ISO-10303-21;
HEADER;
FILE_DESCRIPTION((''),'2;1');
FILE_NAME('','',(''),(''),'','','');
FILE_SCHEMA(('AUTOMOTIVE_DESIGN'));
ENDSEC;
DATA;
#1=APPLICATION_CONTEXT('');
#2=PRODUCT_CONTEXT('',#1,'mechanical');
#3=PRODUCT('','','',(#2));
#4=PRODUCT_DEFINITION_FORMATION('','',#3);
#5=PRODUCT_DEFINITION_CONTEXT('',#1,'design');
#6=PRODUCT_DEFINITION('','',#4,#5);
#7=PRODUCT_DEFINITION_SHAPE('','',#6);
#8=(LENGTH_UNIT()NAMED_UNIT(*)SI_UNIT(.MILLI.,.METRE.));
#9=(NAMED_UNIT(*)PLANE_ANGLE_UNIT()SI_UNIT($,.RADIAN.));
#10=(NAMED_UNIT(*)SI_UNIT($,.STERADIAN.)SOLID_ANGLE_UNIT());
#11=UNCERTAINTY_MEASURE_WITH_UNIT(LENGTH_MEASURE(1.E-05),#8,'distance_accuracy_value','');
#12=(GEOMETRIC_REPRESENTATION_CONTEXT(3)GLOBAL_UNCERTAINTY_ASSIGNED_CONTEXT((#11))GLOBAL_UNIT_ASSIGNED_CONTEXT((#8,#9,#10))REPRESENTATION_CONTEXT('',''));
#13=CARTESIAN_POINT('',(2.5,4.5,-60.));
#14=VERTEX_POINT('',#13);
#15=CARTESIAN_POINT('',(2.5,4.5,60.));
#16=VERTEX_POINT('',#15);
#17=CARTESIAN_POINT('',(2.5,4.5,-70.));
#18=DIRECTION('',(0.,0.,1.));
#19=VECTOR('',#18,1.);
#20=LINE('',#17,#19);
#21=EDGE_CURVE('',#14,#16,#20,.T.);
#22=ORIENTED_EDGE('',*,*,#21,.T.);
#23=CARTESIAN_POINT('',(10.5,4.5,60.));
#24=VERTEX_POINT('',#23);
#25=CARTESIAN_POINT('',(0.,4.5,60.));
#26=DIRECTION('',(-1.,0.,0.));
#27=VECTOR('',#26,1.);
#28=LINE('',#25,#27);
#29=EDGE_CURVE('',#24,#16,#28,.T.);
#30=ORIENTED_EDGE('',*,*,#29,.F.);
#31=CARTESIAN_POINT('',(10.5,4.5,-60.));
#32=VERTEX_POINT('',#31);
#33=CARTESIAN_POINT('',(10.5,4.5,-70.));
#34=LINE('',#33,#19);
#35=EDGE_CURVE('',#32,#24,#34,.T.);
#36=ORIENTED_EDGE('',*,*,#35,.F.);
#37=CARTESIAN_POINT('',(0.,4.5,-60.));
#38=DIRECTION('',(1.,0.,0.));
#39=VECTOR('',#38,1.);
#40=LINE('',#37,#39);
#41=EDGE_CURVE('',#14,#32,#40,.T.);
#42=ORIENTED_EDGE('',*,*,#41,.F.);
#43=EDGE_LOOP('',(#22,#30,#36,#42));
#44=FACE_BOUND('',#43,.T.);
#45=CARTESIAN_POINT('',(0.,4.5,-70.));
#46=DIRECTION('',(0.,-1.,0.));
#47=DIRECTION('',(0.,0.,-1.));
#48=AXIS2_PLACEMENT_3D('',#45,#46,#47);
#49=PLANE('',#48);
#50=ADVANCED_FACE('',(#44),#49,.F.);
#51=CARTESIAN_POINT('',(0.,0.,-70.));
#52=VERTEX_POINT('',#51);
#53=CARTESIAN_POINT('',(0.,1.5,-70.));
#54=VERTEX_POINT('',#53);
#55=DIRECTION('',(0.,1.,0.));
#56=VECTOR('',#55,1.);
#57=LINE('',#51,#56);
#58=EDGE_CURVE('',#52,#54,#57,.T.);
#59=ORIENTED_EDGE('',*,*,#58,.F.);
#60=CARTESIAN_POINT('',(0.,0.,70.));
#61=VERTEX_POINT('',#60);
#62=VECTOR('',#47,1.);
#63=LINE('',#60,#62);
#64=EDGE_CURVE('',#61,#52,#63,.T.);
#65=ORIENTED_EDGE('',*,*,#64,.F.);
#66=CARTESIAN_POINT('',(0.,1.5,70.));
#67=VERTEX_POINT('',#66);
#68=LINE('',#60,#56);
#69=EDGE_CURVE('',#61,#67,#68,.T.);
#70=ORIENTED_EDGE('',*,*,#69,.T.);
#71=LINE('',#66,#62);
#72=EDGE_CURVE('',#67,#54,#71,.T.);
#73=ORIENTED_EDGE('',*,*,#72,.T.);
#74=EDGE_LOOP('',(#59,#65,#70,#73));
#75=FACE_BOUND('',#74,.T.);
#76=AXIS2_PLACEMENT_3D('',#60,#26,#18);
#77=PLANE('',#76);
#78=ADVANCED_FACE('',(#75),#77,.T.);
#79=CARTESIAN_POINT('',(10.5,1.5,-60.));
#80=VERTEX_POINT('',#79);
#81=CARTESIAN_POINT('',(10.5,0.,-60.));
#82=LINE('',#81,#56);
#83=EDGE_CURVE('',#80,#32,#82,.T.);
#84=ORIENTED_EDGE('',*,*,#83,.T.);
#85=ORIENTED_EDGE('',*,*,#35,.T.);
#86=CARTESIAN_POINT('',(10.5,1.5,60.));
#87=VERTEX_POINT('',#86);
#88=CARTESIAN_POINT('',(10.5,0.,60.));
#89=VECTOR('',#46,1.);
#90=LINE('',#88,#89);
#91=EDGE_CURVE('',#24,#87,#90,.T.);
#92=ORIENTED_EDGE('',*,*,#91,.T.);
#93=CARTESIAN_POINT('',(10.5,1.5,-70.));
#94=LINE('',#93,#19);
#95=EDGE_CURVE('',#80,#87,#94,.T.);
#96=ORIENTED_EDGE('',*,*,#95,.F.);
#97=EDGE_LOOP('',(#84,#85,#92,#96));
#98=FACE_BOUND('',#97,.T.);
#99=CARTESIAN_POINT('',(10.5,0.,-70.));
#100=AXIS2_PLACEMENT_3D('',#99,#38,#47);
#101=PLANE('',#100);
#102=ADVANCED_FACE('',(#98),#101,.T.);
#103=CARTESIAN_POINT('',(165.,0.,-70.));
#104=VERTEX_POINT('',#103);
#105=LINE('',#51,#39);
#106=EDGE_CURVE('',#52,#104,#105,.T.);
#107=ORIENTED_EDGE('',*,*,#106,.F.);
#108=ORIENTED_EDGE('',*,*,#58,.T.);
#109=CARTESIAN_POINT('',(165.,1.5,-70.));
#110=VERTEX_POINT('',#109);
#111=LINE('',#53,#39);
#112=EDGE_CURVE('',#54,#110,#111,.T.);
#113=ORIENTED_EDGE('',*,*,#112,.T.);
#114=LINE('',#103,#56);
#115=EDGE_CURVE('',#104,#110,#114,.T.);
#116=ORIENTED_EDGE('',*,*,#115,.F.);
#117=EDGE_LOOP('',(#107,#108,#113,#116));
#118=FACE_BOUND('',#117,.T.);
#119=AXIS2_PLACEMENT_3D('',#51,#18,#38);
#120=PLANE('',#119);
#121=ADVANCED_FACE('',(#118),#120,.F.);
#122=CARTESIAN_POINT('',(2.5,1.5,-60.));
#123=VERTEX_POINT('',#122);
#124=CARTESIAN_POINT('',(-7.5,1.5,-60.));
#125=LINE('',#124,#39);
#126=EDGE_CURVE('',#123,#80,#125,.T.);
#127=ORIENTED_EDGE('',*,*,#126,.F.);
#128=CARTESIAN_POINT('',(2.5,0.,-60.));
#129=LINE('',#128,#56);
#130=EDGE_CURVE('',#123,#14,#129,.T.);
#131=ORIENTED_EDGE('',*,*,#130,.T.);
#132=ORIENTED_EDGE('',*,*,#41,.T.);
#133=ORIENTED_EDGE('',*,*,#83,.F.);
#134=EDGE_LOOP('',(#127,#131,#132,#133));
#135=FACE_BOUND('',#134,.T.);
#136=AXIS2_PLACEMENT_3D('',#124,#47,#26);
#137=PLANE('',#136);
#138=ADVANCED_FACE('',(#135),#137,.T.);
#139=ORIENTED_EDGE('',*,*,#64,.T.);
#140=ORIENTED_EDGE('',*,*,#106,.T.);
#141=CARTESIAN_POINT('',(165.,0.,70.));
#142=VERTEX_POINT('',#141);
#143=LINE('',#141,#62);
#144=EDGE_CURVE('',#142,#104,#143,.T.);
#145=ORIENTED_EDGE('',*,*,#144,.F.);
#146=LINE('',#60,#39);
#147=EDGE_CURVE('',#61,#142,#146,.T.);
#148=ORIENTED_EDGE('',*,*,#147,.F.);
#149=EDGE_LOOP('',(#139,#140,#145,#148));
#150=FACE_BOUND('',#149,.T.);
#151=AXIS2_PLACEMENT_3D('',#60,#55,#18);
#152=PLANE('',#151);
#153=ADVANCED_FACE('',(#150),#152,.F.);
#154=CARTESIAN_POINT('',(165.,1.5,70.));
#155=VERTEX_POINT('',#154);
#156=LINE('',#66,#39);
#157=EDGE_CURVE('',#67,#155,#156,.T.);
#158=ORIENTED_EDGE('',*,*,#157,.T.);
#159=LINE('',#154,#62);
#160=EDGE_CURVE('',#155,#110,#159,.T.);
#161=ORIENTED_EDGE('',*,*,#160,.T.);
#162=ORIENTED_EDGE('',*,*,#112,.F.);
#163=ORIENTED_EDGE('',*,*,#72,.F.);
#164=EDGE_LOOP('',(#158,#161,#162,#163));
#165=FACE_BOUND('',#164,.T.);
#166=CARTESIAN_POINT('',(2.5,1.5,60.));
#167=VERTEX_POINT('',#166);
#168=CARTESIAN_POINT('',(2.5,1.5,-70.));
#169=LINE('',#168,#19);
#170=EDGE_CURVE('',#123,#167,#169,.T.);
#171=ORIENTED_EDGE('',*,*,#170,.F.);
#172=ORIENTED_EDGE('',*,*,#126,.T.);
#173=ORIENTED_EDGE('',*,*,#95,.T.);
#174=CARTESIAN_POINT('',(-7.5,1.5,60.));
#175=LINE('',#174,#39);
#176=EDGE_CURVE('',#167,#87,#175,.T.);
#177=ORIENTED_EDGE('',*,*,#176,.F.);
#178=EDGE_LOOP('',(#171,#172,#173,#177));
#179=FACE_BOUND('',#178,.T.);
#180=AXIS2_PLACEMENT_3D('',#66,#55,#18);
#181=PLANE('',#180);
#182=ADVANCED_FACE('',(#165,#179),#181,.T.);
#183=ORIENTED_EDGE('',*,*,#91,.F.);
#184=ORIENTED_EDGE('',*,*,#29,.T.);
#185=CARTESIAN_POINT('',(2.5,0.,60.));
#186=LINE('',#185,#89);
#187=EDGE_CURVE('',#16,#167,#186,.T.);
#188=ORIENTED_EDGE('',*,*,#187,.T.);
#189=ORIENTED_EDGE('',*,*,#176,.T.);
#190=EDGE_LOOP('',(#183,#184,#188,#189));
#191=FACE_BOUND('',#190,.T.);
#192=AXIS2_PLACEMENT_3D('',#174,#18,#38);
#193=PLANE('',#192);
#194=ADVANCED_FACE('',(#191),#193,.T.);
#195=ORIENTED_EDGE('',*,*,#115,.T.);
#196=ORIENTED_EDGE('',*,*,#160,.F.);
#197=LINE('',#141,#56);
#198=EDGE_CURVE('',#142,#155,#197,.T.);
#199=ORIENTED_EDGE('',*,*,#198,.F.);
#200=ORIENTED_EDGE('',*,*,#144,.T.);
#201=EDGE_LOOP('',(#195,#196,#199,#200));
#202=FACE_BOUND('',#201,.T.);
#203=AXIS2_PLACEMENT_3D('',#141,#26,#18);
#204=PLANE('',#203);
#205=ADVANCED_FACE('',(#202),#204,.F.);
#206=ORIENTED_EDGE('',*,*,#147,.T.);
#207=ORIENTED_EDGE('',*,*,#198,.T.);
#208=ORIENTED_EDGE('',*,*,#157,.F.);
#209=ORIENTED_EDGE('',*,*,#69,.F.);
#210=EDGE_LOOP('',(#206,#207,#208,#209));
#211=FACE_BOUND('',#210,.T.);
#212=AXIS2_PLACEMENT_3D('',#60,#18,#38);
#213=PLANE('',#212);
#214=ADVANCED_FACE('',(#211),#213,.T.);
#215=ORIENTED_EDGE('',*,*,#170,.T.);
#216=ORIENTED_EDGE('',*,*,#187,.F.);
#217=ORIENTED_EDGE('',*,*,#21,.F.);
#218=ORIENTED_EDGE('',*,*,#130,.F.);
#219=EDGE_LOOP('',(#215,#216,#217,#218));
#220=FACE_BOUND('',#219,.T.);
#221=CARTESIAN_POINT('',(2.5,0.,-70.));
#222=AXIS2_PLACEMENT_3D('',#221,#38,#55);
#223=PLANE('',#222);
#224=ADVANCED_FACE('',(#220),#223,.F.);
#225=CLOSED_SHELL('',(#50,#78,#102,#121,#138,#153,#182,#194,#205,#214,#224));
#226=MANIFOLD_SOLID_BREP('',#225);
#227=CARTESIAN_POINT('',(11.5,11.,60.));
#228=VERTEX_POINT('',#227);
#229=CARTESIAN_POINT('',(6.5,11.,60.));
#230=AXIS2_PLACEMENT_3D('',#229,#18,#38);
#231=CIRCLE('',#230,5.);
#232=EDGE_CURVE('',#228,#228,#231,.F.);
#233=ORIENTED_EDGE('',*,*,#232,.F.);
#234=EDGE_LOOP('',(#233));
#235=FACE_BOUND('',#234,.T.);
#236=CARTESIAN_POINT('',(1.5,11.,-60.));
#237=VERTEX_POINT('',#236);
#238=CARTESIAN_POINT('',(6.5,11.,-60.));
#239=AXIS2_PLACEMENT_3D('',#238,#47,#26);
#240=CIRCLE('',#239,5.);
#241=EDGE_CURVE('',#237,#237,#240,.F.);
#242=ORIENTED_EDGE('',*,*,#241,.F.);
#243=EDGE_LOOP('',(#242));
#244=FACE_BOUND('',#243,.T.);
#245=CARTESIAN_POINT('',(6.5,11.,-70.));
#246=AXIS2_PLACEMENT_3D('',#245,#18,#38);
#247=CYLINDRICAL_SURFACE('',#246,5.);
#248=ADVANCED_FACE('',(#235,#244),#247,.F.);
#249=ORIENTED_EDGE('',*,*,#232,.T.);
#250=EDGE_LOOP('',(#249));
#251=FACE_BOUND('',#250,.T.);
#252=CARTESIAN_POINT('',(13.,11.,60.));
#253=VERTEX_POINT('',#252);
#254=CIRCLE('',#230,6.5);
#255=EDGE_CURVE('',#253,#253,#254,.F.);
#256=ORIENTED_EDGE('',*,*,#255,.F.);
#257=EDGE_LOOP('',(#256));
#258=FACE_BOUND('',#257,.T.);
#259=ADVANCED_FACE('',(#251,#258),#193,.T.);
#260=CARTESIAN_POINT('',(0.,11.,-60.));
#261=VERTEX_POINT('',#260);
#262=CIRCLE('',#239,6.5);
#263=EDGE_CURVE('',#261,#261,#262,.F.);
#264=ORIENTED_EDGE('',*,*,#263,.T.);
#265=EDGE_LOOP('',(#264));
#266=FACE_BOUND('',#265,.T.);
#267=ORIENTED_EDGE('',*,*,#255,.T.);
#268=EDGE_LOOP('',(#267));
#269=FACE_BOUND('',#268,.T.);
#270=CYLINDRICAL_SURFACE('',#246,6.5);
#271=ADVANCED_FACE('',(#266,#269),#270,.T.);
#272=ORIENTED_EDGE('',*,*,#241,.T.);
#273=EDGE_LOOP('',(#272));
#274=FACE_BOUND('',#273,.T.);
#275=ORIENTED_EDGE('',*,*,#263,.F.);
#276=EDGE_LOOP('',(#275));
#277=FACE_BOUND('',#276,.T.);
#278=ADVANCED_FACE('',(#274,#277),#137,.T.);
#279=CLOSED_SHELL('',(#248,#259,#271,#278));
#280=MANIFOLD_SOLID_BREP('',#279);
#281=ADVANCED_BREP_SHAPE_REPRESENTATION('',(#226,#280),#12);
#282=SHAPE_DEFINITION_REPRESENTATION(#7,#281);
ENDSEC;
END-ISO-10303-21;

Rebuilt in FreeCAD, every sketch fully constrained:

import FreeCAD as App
import Part
import Sketcher

V = App.Vector


def add_polygon(sketch, points):
    """Adds a closed chain of lines whose ends are joined by coincident constraints."""
    first, n = sketch.GeometryCount, len(points)
    for a, b in zip(points, points[1:] + points[:1]):
        sketch.addGeometry(Part.LineSegment(App.Vector(*a, 0), App.Vector(*b, 0)), False)
    for i in range(n):
        sketch.addConstraint(Sketcher.Constraint("Coincident", first + i, 2, first + (i + 1) % n, 1))

doc = App.newDocument("Part")
body = doc.addObject("PartDesign::Body", "Body")
body.AllowCompound = True

sketch1 = body.newObject("Sketcher::SketchObject", "Sketch")
sketch1.AttachmentSupport = (doc.getObject("XY_Plane"), [""])
sketch1.MapMode = "FlatFace"
sketch1.addGeometry(Part.Circle(V(6.5, 11, 0), V(0, 0, 1), 6.5), False)
sketch1.addGeometry(Part.Circle(V(6.5, 11, 0), V(0, 0, 1), 5), False)
add_polygon(sketch1, [(0, 1.5), (0, 0), (165, 0), (165, 1.5), (10.5, 1.5), (10.5, 4.5), (6.5, 4.5), (2.5, 4.5), (2.5, 1.5)])
sketch1.addConstraint([
    Sketcher.Constraint("Vertical", 2),
    Sketcher.Constraint("Horizontal", 3),
    Sketcher.Constraint("Vertical", 4),
    Sketcher.Constraint("Horizontal", 5),
    Sketcher.Constraint("Vertical", 6),
    Sketcher.Constraint("Horizontal", 7),
    Sketcher.Constraint("Horizontal", 8),
    Sketcher.Constraint("Vertical", 9),
    Sketcher.Constraint("Horizontal", 10),
    Sketcher.Constraint("Coincident", 2, 2, -1, 1),
    Sketcher.Constraint("Coincident", 1, 3, 0, 3),
    Sketcher.Constraint("Horizontal", 5, 2, 9, 2),
    Sketcher.Constraint("Vertical", 1, 3, 7, 2),
    Sketcher.Constraint("Equal", 7, 8),
    Sketcher.Constraint("Diameter", 0, 13.0),
    Sketcher.Constraint("Diameter", 1, 10.0),
    Sketcher.Constraint("DistanceX", 3, 1, 3, 2, 165.0),
    Sketcher.Constraint("DistanceX", 7, 2, 7, 1, 4.0),
    Sketcher.Constraint("DistanceY", 6, 1, 6, 2, 3.0),
    Sketcher.Constraint("DistanceX", 5, 2, 5, 1, 154.5),
    Sketcher.Constraint("DistanceY", 2, 2, 2, 1, 1.5),
    Sketcher.Constraint("DistanceY", -1, 1, 0, 3, 11.0),
])
pad1 = body.newObject("PartDesign::Pad", "Pad")
pad1.Profile = sketch1
pad1.Type = "TwoLengths"
pad1.Length = 70
pad1.Length2 = 70

sketch2 = body.newObject("Sketcher::SketchObject", "Sketch001")
sketch2.AttachmentSupport = (doc.getObject("YZ_Plane"), [""])
sketch2.MapMode = "FlatFace"
sketch2.AttachmentOffset = App.Placement(V(0, 0, 2.5), App.Rotation())
add_polygon(sketch2, [(18.5, -70), (1.5, -70), (1.5, -60), (18.5, -60)])
add_polygon(sketch2, [(18.5, 60), (1.5, 60), (1.5, 70), (18.5, 70)])
sketch2.addConstraint([
    Sketcher.Constraint("Horizontal", 0),
    Sketcher.Constraint("Vertical", 1),
    Sketcher.Constraint("Horizontal", 2),
    Sketcher.Constraint("Vertical", 3),
    Sketcher.Constraint("Horizontal", 4),
    Sketcher.Constraint("Vertical", 5),
    Sketcher.Constraint("Horizontal", 6),
    Sketcher.Constraint("Vertical", 7),
    Sketcher.Constraint("Symmetric", 1, 2, 4, 2, -1),
    Sketcher.Constraint("Symmetric", 3, 2, 6, 2, -1),
    Sketcher.Constraint("DistanceX", 0, 2, 0, 1, 17.0),
    Sketcher.Constraint("DistanceY", 1, 1, 1, 2, 10.0),
    Sketcher.Constraint("DistanceY", 0, 2, -1, 1, 70.0),
    Sketcher.Constraint("DistanceX", -1, 1, 0, 2, 1.5),
])
pocket1 = body.newObject("PartDesign::Pocket", "Pocket")
pocket1.Profile = sketch2
pocket1.Type = "ThroughAll"
pocket1.Midplane = True

doc.recompute()
